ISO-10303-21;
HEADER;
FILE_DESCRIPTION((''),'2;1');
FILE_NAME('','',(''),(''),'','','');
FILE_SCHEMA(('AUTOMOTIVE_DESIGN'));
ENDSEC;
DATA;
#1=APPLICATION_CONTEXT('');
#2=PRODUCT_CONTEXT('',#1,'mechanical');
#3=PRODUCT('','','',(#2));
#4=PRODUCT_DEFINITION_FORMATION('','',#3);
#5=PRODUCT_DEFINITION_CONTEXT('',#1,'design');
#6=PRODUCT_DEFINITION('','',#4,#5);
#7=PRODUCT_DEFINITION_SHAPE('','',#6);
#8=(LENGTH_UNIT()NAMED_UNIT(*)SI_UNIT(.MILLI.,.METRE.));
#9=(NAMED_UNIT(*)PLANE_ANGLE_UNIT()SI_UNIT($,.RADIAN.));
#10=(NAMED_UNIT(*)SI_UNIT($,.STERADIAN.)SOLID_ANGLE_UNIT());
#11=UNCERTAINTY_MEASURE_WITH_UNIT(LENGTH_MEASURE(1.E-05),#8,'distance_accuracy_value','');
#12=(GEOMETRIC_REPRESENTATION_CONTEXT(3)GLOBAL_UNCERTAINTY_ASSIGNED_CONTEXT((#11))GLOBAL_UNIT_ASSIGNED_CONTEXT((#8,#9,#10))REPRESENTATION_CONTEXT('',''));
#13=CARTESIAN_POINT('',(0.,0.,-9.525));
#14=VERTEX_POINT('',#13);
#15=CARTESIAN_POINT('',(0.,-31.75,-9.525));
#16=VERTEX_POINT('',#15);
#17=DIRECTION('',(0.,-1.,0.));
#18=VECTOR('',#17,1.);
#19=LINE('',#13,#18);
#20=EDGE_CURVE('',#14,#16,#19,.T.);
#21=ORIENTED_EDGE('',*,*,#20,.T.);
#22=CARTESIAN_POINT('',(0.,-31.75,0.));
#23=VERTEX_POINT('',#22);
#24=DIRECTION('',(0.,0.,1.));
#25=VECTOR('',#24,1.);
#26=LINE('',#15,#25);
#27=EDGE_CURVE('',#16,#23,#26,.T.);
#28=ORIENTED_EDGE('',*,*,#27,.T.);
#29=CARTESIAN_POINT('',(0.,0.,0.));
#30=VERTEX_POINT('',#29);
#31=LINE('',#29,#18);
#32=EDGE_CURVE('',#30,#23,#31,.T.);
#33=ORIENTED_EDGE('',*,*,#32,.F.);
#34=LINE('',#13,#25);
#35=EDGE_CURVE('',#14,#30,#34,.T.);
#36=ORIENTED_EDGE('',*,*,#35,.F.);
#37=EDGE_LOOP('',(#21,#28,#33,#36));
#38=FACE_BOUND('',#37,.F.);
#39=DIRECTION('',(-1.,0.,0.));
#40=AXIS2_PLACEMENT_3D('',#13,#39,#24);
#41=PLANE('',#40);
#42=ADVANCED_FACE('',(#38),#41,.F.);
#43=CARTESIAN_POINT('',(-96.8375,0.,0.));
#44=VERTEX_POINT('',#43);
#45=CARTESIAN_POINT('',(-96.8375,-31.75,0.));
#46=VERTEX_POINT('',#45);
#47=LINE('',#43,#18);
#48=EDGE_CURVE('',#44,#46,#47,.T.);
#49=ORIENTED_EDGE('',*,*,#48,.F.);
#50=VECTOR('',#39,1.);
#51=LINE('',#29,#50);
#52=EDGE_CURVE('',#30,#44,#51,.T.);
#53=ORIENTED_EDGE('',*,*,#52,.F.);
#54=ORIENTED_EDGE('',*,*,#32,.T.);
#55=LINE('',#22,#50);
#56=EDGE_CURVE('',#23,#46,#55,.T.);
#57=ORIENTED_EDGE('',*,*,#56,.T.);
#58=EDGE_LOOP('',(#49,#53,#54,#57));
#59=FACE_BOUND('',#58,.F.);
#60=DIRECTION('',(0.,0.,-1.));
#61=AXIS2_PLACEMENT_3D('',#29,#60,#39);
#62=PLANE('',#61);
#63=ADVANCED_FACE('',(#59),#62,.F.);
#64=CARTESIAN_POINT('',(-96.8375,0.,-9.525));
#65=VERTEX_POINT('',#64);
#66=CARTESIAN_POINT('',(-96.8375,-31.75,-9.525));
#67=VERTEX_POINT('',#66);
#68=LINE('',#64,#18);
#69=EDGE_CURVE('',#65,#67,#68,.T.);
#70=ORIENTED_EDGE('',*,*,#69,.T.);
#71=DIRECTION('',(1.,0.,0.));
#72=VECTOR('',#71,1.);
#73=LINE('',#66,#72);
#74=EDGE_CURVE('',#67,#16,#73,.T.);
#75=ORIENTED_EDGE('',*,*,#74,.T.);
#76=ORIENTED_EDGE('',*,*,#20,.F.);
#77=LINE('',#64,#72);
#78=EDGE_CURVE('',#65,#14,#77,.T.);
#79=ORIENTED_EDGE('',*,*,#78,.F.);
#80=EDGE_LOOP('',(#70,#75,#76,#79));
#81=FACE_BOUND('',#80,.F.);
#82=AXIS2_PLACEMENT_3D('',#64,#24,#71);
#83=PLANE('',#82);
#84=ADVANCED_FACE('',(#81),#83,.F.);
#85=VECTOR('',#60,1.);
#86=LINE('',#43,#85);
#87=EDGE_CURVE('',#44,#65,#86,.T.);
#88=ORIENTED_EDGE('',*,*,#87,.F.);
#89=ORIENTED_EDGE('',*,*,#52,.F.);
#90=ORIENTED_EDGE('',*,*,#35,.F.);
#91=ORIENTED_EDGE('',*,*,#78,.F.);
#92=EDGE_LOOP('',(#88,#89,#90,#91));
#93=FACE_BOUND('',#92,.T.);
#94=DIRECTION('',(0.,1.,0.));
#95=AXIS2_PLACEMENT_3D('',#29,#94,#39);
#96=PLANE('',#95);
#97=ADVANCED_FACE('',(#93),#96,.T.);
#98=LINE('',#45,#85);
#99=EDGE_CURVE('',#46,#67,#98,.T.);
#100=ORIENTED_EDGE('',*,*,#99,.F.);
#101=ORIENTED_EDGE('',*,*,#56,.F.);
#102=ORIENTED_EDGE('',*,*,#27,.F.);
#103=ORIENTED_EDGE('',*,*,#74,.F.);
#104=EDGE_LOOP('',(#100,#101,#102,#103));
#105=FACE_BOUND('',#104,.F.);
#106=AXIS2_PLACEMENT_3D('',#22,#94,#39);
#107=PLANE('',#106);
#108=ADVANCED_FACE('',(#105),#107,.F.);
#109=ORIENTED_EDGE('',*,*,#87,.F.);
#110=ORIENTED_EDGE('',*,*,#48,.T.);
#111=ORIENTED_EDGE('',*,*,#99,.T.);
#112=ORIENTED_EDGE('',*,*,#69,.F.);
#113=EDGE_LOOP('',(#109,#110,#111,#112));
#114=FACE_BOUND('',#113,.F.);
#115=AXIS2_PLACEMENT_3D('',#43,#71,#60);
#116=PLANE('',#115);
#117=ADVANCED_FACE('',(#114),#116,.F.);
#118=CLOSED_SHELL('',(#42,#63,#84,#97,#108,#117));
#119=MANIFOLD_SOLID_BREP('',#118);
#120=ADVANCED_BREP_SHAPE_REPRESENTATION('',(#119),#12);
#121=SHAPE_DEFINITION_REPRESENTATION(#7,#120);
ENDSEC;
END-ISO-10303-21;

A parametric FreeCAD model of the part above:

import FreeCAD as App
import Part
import Sketcher
Q = App.Units.Quantity

doc = App.newDocument("Part")
params = doc.addObject("Spreadsheet::Sheet", "Params")
for row, (alias, value) in enumerate([
    ("sketch1_width", "3.8125 in"),
    ("sketch1_height", "0.375 in"),
    ("pad1_length", "1.25 in"),
], start=1):
    params.set(f"A{row}", alias)
    params.set(f"B{row}", "=" + value)
    params.setAlias(f"B{row}", alias)

body = doc.addObject("PartDesign::Body", "Body")

sketch1 = doc.addObject("Sketcher::SketchObject", "Sketch")
body.addObject(sketch1)
sketch1.AttachmentSupport = (doc.XZ_Plane, [""])
sketch1.MapMode = "FlatFace"
sketch1.addGeometry([
    Part.LineSegment(App.Vector(-97, 0, 0), App.Vector(0, 0, 0)),
    Part.LineSegment(App.Vector(0, 0, 0), App.Vector(0, -10, 0)),
    Part.LineSegment(App.Vector(0, -10, 0), App.Vector(-97, -10, 0)),
    Part.LineSegment(App.Vector(-97, -10, 0), App.Vector(-97, 0, 0)),
], False)
sketch1.addConstraint([
    Sketcher.Constraint("Coincident", 0, 2, 1, 1),
    Sketcher.Constraint("Coincident", 1, 2, 2, 1),
    Sketcher.Constraint("Coincident", 2, 2, 3, 1),
    Sketcher.Constraint("Coincident", 3, 2, 0, 1),
    Sketcher.Constraint("Horizontal", 0),
    Sketcher.Constraint("Vertical", 1),
    Sketcher.Constraint("Horizontal", 2),
    Sketcher.Constraint("Vertical", 3),
    Sketcher.Constraint("Coincident", 0, 2, -1, 1),
    Sketcher.Constraint("DistanceX", 0, 1, 0, 2, Q("3.8125 in")),
    Sketcher.Constraint("DistanceY", 1, 2, 1, 1, Q("0.375 in")),
])
sketch1.setExpression("Constraints[9]", "Params.sketch1_width")
sketch1.setExpression("Constraints[10]", "Params.sketch1_height")
pad1 = doc.addObject("PartDesign::Pad", "Pad")
body.addObject(pad1)
pad1.Profile = sketch1
pad1.setExpression("Length", "Params.pad1_length")

doc.recompute()
